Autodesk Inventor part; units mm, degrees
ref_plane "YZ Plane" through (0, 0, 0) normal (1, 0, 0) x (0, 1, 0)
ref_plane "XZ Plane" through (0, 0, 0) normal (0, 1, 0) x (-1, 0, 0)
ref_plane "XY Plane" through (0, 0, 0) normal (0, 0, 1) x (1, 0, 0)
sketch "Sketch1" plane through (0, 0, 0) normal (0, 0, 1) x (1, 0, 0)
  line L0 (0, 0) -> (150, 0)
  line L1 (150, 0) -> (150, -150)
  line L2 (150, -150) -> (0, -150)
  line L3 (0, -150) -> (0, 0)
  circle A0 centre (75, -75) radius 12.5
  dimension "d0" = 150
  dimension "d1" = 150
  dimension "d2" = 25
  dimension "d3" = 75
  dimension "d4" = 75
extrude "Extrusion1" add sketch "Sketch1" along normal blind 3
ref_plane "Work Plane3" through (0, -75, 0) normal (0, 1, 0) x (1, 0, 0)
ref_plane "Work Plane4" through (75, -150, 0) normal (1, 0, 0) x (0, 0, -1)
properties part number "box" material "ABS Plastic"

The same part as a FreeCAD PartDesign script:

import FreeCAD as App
import Part
import Sketcher

V = App.Vector
Q = App.Units.Quantity


def add_polygon(sketch, points):
    """Adds a closed chain of lines whose ends are joined by coincident constraints."""
    first, n = sketch.GeometryCount, len(points)
    for a, b in zip(points, points[1:] + points[:1]):
        sketch.addGeometry(Part.LineSegment(App.Vector(*a, 0), App.Vector(*b, 0)), False)
    for i in range(n):
        sketch.addConstraint(Sketcher.Constraint("Coincident", first + i, 2, first + (i + 1) % n, 1))

doc = App.newDocument("Part")
body = doc.addObject("PartDesign::Body", "Body")

sketch1 = doc.addObject("Sketcher::SketchObject", "Sketch")
body.addObject(sketch1)
sketch1.AttachmentSupport = (doc.XY_Plane, [""])
sketch1.MapMode = "FlatFace"
add_polygon(sketch1, [(150, 0), (0, 0), (0, -150), (150, -150)])
sketch1.addGeometry(Part.Circle(V(75, -75, 0), V(0, 0, 1), 12), False)
sketch1.addConstraint([
    Sketcher.Constraint("Horizontal", 0),
    Sketcher.Constraint("Vertical", 1),
    Sketcher.Constraint("Horizontal", 2),
    Sketcher.Constraint("Vertical", 3),
    Sketcher.Constraint("Coincident", 0, 2, -1, 1),
    Sketcher.Constraint("Equal", 2, 1),
    Sketcher.Constraint("Diameter", 4, Q("25 mm")),
    Sketcher.Constraint("DistanceX", 0, 2, 0, 1, Q("150 mm")),
    Sketcher.Constraint("DistanceX", -1, 1, 4, 3, Q("75 mm")),
    Sketcher.Constraint("DistanceY", 4, 3, -1, 1, Q("75 mm")),
])
pad1 = doc.addObject("PartDesign::Pad", "Pad")
body.addObject(pad1)
pad1.Profile = sketch1
pad1.Length = 3

doc.recompute()
